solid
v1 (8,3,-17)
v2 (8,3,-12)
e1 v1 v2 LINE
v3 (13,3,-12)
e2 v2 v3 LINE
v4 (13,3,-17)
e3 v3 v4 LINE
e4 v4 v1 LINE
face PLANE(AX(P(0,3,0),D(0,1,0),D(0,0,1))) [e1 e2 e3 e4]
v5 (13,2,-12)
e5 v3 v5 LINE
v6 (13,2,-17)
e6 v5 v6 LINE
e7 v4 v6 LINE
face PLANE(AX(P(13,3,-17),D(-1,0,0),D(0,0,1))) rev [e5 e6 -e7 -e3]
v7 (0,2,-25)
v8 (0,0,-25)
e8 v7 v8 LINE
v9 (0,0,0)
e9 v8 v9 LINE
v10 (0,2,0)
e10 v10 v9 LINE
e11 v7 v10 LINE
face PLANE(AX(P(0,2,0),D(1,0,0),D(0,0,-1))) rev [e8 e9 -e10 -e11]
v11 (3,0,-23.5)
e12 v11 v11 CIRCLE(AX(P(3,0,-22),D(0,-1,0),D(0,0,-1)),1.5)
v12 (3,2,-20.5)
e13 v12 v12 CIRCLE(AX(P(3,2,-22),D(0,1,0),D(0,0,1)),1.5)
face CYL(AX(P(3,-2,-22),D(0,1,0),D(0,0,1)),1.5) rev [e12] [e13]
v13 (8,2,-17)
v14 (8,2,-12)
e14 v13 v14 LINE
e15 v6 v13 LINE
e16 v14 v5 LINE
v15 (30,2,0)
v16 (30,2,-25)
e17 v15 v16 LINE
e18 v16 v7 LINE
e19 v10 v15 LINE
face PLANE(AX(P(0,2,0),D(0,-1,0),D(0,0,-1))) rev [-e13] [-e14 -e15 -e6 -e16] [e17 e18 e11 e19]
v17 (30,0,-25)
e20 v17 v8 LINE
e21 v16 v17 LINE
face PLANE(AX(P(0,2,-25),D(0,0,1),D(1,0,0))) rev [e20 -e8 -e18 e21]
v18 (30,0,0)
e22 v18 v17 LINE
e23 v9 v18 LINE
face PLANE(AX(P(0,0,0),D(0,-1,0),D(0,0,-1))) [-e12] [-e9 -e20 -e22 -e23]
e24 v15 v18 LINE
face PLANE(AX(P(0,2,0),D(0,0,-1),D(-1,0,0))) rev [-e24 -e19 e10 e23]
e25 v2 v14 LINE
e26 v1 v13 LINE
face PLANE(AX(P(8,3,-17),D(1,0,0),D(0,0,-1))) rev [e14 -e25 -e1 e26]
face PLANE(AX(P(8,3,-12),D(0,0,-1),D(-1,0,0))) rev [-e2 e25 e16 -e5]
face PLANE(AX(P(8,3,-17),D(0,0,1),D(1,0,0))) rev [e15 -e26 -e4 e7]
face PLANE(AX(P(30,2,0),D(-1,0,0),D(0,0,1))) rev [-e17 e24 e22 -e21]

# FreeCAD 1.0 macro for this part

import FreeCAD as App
import Part
import Sketcher

V = App.Vector

doc = App.newDocument("Part")
params = doc.addObject("Spreadsheet::Sheet", "Params")
for row, (alias, value) in enumerate([
    ("sketch1_width", "30 mm"),
    ("sketch1_height", "25 mm"),
    ("pad1_length", "2 mm"),
    ("sketch2_width", "5 mm"),
    ("pad2_length", "1 mm"),
    ("sketch3_diameter", "3 mm"),
    ("pocket1_length", "4 mm"),
], start=1):
    params.set(f"A{row}", alias)
    params.set(f"B{row}", "=" + value)
    params.setAlias(f"B{row}", alias)

body = doc.addObject("PartDesign::Body", "Body")

# Sketch on XZ plane
sketch1 = body.newObject("Sketcher::SketchObject", "Sketch")
sketch1.AttachmentSupport = (doc.getObject("XZ_Plane"), [""])
sketch1.MapMode = "FlatFace"
sketch1.addGeometry([
    Part.LineSegment(V(0, -25, 0), V(0, 0, 0)),
    Part.LineSegment(V(0, 0, 0), V(30, 0, 0)),
    Part.LineSegment(V(30, 0, 0), V(30, -25, 0)),
    Part.LineSegment(V(30, -25, 0), V(0, -25, 0)),
], False)
sketch1.addConstraint([
    Sketcher.Constraint("Coincident", 0, 2, 1, 1),
    Sketcher.Constraint("Coincident", 1, 2, 2, 1),
    Sketcher.Constraint("Coincident", 2, 2, 3, 1),
    Sketcher.Constraint("Coincident", 3, 2, 0, 1),
    Sketcher.Constraint("Vertical", 0),
    Sketcher.Constraint("Horizontal", 1),
    Sketcher.Constraint("Vertical", 2),
    Sketcher.Constraint("Horizontal", 3),
    Sketcher.Constraint("Coincident", 0, 2, -1, 1),
    Sketcher.Constraint("DistanceX", 1, 1, 1, 2, 30.0),
    Sketcher.Constraint("DistanceY", 0, 1, 0, 2, 25.0),
])
sketch1.setExpression("Constraints[9]", "Params.sketch1_width")
sketch1.setExpression("Constraints[10]", "Params.sketch1_height")
pad1 = body.newObject("PartDesign::Pad", "Pad")
pad1.Profile = sketch1
pad1.setExpression("Length", "Params.pad1_length")
pad1.Reversed = True

# Sketch on XZ plane
sketch2 = body.newObject("Sketcher::SketchObject", "Sketch001")
sketch2.AttachmentSupport = (doc.getObject("XZ_Plane"), [""])
sketch2.MapMode = "FlatFace"
sketch2.AttachmentOffset = App.Placement(V(0, 0, -2), App.Rotation())
sketch2.addGeometry([
    Part.LineSegment(V(8, -17, 0), V(8, -12, 0)),
    Part.LineSegment(V(8, -12, 0), V(13, -12, 0)),
    Part.LineSegment(V(13, -12, 0), V(13, -17, 0)),
    Part.LineSegment(V(13, -17, 0), V(8, -17, 0)),
], False)
sketch2.addConstraint([
    Sketcher.Constraint("Coincident", 0, 2, 1, 1),
    Sketcher.Constraint("Coincident", 1, 2, 2, 1),
    Sketcher.Constraint("Coincident", 2, 2, 3, 1),
    Sketcher.Constraint("Coincident", 3, 2, 0, 1),
    Sketcher.Constraint("Vertical", 0),
    Sketcher.Constraint("Horizontal", 1),
    Sketcher.Constraint("Vertical", 2),
    Sketcher.Constraint("Horizontal", 3),
    Sketcher.Constraint("Equal", 3, 0),
    Sketcher.Constraint("DistanceX", 1, 1, 1, 2, 5.0),
    Sketcher.Constraint("DistanceX", -1, 1, 0, 2, 8.0),
    Sketcher.Constraint("DistanceY", 0, 2, -1, 1, 12.0),
])
sketch2.setExpression("Constraints[9]", "Params.sketch2_width")
pad2 = body.newObject("PartDesign::Pad", "Pad001")
pad2.Profile = sketch2
pad2.setExpression("Length", "Params.pad2_length")
pad2.Reversed = True

# Sketch on XZ plane
sketch3 = body.newObject("Sketcher::SketchObject", "Sketch002")
sketch3.AttachmentSupport = (doc.getObject("XZ_Plane"), [""])
sketch3.MapMode = "FlatFace"
sketch3.AttachmentOffset = App.Placement(V(0, 0, -2), App.Rotation())
sketch3.addGeometry(Part.Circle(V(3, -22, 0), V(0, 0, 1), 1.5), False)
sketch3.addConstraint([
    Sketcher.Constraint("Diameter", 0, 3.0),
    Sketcher.Constraint("DistanceX", -1, 1, 0, 3, 3.0),
    Sketcher.Constraint("DistanceY", 0, 3, -1, 1, 22.0),
])
sketch3.setExpression("Constraints[0]", "Params.sketch3_diameter")
pocket1 = body.newObject("PartDesign::Pocket", "Pocket")
pocket1.Profile = sketch3
pocket1.setExpression("Length", "Params.pocket1_length")
pocket1.Reversed = True

doc.recompute()
